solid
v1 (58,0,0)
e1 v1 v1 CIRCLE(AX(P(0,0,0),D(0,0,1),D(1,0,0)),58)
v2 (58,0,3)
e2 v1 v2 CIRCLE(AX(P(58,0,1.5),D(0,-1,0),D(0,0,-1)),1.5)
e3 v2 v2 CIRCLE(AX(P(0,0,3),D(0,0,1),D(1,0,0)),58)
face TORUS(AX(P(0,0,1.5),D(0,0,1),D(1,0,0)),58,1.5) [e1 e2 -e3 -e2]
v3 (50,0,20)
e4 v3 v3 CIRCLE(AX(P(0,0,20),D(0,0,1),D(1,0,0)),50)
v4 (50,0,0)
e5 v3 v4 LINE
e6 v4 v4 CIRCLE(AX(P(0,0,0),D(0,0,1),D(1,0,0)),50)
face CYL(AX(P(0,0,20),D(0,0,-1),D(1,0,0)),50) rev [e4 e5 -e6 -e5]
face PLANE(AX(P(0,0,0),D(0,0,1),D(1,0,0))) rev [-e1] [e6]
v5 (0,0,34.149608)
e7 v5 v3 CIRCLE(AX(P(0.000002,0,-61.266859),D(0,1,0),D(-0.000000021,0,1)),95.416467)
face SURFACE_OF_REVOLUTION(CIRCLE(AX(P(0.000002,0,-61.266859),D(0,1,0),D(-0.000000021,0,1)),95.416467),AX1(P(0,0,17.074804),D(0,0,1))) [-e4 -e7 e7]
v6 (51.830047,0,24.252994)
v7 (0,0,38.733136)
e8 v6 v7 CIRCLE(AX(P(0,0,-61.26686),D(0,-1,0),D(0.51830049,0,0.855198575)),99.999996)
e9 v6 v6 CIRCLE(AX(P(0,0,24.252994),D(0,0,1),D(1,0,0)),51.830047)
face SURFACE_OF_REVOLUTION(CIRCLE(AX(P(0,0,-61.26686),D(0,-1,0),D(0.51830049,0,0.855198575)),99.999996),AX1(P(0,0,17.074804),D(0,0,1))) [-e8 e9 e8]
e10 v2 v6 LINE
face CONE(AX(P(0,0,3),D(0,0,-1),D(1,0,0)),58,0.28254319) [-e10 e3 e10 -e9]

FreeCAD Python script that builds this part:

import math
import FreeCAD as App
import Part
import Sketcher
Q = App.Units.Quantity

doc = App.newDocument("Part")
params = doc.addObject("Spreadsheet::Sheet", "Params")
for row, (alias, value) in enumerate([
    ("sketch1_radius", "1.5 mm"),
    ("sketch1_width", "8 mm"),
    ("sketch1_height", "20 mm"),
    ("revolution_angle", "360 deg"),
], start=1):
    params.set(f"A{row}", alias)
    params.set(f"B{row}", "=" + value)
    params.setAlias(f"B{row}", alias)

body = doc.addObject("PartDesign::Body", "Body")

# Sketch on XZ plane
sketch1 = body.newObject("Sketcher::SketchObject", "Sketch")
sketch1.AttachmentSupport = (doc.getObject("XZ_Plane"), [""])
sketch1.MapMode = "FlatFace"
sketch1.addGeometry([
    Part.LineSegment(App.Vector(50, 20, 0), App.Vector(50, 0, 0)),  # 0
    Part.LineSegment(App.Vector(50, 0, 0), App.Vector(58, 0, 0)),  # 1
    Part.ArcOfCircle(Part.Circle(App.Vector(58, 1.5, 0), App.Vector(0, 0, 1), 1.5), math.radians(-90), math.radians(90)),  # 2
    Part.LineSegment(App.Vector(58, 3, 0), App.Vector(51.8, 24.3, 0)),  # 3
    Part.ArcOfCircle(Part.Circle(App.Vector(0, -61.3, 0), App.Vector(0, 0, 1), 100), math.radians(59), math.radians(90)),  # 4
    Part.LineSegment(App.Vector(0, 38.7, 0), App.Vector(0, 34.1, 0)),  # 5
    Part.ArcOfCircle(Part.Circle(App.Vector(0, -61.3, 0), App.Vector(0, 0, 1), 95.4), math.radians(58), math.radians(90)),  # 6
], False)
sketch1.addConstraint([
    Sketcher.Constraint("Coincident", 0, 2, 1, 1),
    Sketcher.Constraint("Tangent", 1, 2, 2, 1),
    Sketcher.Constraint("Coincident", 2, 2, 3, 1),
    Sketcher.Constraint("Coincident", 3, 2, 4, 1),
    Sketcher.Constraint("Coincident", 4, 2, 5, 1),
    Sketcher.Constraint("Coincident", 5, 2, 6, 2),
    Sketcher.Constraint("Coincident", 6, 1, 0, 1),
    Sketcher.Constraint("Vertical", 0),
    Sketcher.Constraint("Horizontal", 1),
    Sketcher.Constraint("Vertical", 5),
    Sketcher.Constraint("Coincident", 6, 3, 4, 3),
    Sketcher.Constraint("PointOnObject", 4, 3, -2),
    Sketcher.Constraint("PointOnObject", 0, 2, -1),
    Sketcher.Constraint("PointOnObject", 4, 2, -2),
    Sketcher.Constraint("Vertical", 1, 2, 2, 2),
    Sketcher.Constraint("Radius", 2, Q("1.5 mm")),
    Sketcher.Constraint("DistanceX", 1, 1, 1, 2, Q("8 mm")),
    Sketcher.Constraint("DistanceY", 0, 2, 0, 1, Q("20 mm")),
    Sketcher.Constraint("DistanceX", -1, 1, 2, 3, Q("58 mm")),
    Sketcher.Constraint("Radius", 4, Q("99.999996 mm")),
    Sketcher.Constraint("Radius", 6, Q("95.416467 mm")),
    Sketcher.Constraint("Distance", 3, Q("22.130478 mm")),
])
sketch1.setExpression("Constraints[15]", "Params.sketch1_radius")
sketch1.setExpression("Constraints[16]", "Params.sketch1_width")
sketch1.setExpression("Constraints[17]", "Params.sketch1_height")
revolution = body.newObject("PartDesign::Revolution", "Revolution")
revolution.Profile = sketch1
revolution.ReferenceAxis = (sketch1, ["V_Axis"])
revolution.setExpression("Angle", "Params.revolution_angle")

doc.recompute()
